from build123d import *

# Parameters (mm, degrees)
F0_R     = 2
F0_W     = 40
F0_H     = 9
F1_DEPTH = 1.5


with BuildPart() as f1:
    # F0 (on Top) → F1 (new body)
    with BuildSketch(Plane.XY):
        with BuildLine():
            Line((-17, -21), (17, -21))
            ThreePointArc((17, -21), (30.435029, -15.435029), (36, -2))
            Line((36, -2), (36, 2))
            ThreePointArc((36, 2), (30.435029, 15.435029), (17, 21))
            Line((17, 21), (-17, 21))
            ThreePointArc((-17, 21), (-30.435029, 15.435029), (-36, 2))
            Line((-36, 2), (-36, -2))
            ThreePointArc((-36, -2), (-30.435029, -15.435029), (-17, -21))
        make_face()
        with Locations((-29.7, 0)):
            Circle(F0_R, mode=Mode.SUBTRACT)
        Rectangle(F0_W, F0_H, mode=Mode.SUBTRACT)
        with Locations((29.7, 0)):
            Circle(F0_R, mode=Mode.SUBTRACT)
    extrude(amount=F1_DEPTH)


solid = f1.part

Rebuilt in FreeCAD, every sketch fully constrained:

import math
import FreeCAD as App
import Part
import Sketcher

V = App.Vector


def add_polygon(sketch, points):
    """Adds a closed chain of lines whose ends are joined by coincident constraints."""
    first, n = sketch.GeometryCount, len(points)
    for a, b in zip(points, points[1:] + points[:1]):
        sketch.addGeometry(Part.LineSegment(App.Vector(*a, 0), App.Vector(*b, 0)), False)
    for i in range(n):
        sketch.addConstraint(Sketcher.Constraint("Coincident", first + i, 2, first + (i + 1) % n, 1))

doc = App.newDocument("Part")
body = doc.addObject("PartDesign::Body", "Body")

sketch1 = body.newObject("Sketcher::SketchObject", "Sketch")
sketch1.AttachmentSupport = (doc.getObject("XY_Plane"), [""])
sketch1.MapMode = "FlatFace"
sketch1.addGeometry(Part.LineSegment(V(-17, -21, 0), V(17, -21, 0)), False)
sketch1.addGeometry(Part.ArcOfCircle(Part.Circle(V(17.000001, -2.000001, 0), V(0, 0, 1), 18.999999), math.radians(-90.000002), math.radians(0.000002)), False)
sketch1.addGeometry(Part.LineSegment(V(36, -2, 0), V(36, 2, 0)), False)
sketch1.addGeometry(Part.ArcOfCircle(Part.Circle(V(17.000001, 2.000001, 0), V(0, 0, 1), 18.999999), math.radians(-0.000002), math.radians(90.000002)), False)
sketch1.addGeometry(Part.LineSegment(V(17, 21, 0), V(-17, 21, 0)), False)
sketch1.addGeometry(Part.ArcOfCircle(Part.Circle(V(-17.000001, 2.000001, 0), V(0, 0, 1), 18.999999), math.radians(89.999998), math.radians(180.000002)), False)
sketch1.addGeometry(Part.LineSegment(V(-36, 2, 0), V(-36, -2, 0)), False)
sketch1.addGeometry(Part.ArcOfCircle(Part.Circle(V(-17.000001, -2.000001, 0), V(0, 0, 1), 18.999999), math.radians(179.999998), math.radians(270.000002)), False)
sketch1.addGeometry(Part.Circle(V(-29.7, 0, 0), V(0, 0, 1), 2), False)
add_polygon(sketch1, [(20, -4.5), (-20, -4.5), (-20, 4.5), (20, 4.5)])
sketch1.addGeometry(Part.Circle(V(29.7, 0, 0), V(0, 0, 1), 2), False)
sketch1.addConstraint([
    Sketcher.Constraint("Tangent", 0, 2, 1, 1),
    Sketcher.Constraint("Tangent", 1, 2, 2, 1),
    Sketcher.Constraint("Tangent", 2, 2, 3, 1),
    Sketcher.Constraint("Tangent", 3, 2, 4, 1),
    Sketcher.Constraint("Tangent", 4, 2, 5, 1),
    Sketcher.Constraint("Tangent", 5, 2, 6, 1),
    Sketcher.Constraint("Tangent", 6, 2, 7, 1),
    Sketcher.Constraint("Tangent", 7, 2, 0, 1),
    Sketcher.Constraint("Horizontal", 0),
    Sketcher.Constraint("Vertical", 2),
    Sketcher.Constraint("Horizontal", 4),
    Sketcher.Constraint("Vertical", 6),
    Sketcher.Constraint("Horizontal", 9),
    Sketcher.Constraint("Vertical", 10),
    Sketcher.Constraint("Horizontal", 11),
    Sketcher.Constraint("Vertical", 12),
    Sketcher.Constraint("Equal", 1, 3),
    Sketcher.Constraint("Equal", 3, 5),
    Sketcher.Constraint("Equal", 5, 7),
    Sketcher.Constraint("Equal", 8, 13),
    Sketcher.Constraint("Symmetric", 1, 3, 5, 3, -1, 1),
    Sketcher.Constraint("Symmetric", 8, 3, 13, 3, -1, 1),
    Sketcher.Constraint("Symmetric", 9, 2, 11, 2, -1, 1),
    Sketcher.Constraint("PointOnObject", 8, 3, -1),
    Sketcher.Constraint("Diameter", 8, 4.0),
    Sketcher.Constraint("Radius", 1, 18.999999),
    Sketcher.Constraint("DistanceX", 0, 1, 0, 2, 34.0),
    Sketcher.Constraint("DistanceX", 9, 2, 9, 1, 40.0),
    Sketcher.Constraint("DistanceY", 2, 1, 2, 2, 4.0),
    Sketcher.Constraint("DistanceY", 10, 1, 10, 2, 9.0),
    Sketcher.Constraint("DistanceX", 8, 3, -1, 1, 29.7),
])
pad1 = body.newObject("PartDesign::Pad", "Pad")
pad1.Profile = sketch1
pad1.Length = 1.5

doc.recompute()
